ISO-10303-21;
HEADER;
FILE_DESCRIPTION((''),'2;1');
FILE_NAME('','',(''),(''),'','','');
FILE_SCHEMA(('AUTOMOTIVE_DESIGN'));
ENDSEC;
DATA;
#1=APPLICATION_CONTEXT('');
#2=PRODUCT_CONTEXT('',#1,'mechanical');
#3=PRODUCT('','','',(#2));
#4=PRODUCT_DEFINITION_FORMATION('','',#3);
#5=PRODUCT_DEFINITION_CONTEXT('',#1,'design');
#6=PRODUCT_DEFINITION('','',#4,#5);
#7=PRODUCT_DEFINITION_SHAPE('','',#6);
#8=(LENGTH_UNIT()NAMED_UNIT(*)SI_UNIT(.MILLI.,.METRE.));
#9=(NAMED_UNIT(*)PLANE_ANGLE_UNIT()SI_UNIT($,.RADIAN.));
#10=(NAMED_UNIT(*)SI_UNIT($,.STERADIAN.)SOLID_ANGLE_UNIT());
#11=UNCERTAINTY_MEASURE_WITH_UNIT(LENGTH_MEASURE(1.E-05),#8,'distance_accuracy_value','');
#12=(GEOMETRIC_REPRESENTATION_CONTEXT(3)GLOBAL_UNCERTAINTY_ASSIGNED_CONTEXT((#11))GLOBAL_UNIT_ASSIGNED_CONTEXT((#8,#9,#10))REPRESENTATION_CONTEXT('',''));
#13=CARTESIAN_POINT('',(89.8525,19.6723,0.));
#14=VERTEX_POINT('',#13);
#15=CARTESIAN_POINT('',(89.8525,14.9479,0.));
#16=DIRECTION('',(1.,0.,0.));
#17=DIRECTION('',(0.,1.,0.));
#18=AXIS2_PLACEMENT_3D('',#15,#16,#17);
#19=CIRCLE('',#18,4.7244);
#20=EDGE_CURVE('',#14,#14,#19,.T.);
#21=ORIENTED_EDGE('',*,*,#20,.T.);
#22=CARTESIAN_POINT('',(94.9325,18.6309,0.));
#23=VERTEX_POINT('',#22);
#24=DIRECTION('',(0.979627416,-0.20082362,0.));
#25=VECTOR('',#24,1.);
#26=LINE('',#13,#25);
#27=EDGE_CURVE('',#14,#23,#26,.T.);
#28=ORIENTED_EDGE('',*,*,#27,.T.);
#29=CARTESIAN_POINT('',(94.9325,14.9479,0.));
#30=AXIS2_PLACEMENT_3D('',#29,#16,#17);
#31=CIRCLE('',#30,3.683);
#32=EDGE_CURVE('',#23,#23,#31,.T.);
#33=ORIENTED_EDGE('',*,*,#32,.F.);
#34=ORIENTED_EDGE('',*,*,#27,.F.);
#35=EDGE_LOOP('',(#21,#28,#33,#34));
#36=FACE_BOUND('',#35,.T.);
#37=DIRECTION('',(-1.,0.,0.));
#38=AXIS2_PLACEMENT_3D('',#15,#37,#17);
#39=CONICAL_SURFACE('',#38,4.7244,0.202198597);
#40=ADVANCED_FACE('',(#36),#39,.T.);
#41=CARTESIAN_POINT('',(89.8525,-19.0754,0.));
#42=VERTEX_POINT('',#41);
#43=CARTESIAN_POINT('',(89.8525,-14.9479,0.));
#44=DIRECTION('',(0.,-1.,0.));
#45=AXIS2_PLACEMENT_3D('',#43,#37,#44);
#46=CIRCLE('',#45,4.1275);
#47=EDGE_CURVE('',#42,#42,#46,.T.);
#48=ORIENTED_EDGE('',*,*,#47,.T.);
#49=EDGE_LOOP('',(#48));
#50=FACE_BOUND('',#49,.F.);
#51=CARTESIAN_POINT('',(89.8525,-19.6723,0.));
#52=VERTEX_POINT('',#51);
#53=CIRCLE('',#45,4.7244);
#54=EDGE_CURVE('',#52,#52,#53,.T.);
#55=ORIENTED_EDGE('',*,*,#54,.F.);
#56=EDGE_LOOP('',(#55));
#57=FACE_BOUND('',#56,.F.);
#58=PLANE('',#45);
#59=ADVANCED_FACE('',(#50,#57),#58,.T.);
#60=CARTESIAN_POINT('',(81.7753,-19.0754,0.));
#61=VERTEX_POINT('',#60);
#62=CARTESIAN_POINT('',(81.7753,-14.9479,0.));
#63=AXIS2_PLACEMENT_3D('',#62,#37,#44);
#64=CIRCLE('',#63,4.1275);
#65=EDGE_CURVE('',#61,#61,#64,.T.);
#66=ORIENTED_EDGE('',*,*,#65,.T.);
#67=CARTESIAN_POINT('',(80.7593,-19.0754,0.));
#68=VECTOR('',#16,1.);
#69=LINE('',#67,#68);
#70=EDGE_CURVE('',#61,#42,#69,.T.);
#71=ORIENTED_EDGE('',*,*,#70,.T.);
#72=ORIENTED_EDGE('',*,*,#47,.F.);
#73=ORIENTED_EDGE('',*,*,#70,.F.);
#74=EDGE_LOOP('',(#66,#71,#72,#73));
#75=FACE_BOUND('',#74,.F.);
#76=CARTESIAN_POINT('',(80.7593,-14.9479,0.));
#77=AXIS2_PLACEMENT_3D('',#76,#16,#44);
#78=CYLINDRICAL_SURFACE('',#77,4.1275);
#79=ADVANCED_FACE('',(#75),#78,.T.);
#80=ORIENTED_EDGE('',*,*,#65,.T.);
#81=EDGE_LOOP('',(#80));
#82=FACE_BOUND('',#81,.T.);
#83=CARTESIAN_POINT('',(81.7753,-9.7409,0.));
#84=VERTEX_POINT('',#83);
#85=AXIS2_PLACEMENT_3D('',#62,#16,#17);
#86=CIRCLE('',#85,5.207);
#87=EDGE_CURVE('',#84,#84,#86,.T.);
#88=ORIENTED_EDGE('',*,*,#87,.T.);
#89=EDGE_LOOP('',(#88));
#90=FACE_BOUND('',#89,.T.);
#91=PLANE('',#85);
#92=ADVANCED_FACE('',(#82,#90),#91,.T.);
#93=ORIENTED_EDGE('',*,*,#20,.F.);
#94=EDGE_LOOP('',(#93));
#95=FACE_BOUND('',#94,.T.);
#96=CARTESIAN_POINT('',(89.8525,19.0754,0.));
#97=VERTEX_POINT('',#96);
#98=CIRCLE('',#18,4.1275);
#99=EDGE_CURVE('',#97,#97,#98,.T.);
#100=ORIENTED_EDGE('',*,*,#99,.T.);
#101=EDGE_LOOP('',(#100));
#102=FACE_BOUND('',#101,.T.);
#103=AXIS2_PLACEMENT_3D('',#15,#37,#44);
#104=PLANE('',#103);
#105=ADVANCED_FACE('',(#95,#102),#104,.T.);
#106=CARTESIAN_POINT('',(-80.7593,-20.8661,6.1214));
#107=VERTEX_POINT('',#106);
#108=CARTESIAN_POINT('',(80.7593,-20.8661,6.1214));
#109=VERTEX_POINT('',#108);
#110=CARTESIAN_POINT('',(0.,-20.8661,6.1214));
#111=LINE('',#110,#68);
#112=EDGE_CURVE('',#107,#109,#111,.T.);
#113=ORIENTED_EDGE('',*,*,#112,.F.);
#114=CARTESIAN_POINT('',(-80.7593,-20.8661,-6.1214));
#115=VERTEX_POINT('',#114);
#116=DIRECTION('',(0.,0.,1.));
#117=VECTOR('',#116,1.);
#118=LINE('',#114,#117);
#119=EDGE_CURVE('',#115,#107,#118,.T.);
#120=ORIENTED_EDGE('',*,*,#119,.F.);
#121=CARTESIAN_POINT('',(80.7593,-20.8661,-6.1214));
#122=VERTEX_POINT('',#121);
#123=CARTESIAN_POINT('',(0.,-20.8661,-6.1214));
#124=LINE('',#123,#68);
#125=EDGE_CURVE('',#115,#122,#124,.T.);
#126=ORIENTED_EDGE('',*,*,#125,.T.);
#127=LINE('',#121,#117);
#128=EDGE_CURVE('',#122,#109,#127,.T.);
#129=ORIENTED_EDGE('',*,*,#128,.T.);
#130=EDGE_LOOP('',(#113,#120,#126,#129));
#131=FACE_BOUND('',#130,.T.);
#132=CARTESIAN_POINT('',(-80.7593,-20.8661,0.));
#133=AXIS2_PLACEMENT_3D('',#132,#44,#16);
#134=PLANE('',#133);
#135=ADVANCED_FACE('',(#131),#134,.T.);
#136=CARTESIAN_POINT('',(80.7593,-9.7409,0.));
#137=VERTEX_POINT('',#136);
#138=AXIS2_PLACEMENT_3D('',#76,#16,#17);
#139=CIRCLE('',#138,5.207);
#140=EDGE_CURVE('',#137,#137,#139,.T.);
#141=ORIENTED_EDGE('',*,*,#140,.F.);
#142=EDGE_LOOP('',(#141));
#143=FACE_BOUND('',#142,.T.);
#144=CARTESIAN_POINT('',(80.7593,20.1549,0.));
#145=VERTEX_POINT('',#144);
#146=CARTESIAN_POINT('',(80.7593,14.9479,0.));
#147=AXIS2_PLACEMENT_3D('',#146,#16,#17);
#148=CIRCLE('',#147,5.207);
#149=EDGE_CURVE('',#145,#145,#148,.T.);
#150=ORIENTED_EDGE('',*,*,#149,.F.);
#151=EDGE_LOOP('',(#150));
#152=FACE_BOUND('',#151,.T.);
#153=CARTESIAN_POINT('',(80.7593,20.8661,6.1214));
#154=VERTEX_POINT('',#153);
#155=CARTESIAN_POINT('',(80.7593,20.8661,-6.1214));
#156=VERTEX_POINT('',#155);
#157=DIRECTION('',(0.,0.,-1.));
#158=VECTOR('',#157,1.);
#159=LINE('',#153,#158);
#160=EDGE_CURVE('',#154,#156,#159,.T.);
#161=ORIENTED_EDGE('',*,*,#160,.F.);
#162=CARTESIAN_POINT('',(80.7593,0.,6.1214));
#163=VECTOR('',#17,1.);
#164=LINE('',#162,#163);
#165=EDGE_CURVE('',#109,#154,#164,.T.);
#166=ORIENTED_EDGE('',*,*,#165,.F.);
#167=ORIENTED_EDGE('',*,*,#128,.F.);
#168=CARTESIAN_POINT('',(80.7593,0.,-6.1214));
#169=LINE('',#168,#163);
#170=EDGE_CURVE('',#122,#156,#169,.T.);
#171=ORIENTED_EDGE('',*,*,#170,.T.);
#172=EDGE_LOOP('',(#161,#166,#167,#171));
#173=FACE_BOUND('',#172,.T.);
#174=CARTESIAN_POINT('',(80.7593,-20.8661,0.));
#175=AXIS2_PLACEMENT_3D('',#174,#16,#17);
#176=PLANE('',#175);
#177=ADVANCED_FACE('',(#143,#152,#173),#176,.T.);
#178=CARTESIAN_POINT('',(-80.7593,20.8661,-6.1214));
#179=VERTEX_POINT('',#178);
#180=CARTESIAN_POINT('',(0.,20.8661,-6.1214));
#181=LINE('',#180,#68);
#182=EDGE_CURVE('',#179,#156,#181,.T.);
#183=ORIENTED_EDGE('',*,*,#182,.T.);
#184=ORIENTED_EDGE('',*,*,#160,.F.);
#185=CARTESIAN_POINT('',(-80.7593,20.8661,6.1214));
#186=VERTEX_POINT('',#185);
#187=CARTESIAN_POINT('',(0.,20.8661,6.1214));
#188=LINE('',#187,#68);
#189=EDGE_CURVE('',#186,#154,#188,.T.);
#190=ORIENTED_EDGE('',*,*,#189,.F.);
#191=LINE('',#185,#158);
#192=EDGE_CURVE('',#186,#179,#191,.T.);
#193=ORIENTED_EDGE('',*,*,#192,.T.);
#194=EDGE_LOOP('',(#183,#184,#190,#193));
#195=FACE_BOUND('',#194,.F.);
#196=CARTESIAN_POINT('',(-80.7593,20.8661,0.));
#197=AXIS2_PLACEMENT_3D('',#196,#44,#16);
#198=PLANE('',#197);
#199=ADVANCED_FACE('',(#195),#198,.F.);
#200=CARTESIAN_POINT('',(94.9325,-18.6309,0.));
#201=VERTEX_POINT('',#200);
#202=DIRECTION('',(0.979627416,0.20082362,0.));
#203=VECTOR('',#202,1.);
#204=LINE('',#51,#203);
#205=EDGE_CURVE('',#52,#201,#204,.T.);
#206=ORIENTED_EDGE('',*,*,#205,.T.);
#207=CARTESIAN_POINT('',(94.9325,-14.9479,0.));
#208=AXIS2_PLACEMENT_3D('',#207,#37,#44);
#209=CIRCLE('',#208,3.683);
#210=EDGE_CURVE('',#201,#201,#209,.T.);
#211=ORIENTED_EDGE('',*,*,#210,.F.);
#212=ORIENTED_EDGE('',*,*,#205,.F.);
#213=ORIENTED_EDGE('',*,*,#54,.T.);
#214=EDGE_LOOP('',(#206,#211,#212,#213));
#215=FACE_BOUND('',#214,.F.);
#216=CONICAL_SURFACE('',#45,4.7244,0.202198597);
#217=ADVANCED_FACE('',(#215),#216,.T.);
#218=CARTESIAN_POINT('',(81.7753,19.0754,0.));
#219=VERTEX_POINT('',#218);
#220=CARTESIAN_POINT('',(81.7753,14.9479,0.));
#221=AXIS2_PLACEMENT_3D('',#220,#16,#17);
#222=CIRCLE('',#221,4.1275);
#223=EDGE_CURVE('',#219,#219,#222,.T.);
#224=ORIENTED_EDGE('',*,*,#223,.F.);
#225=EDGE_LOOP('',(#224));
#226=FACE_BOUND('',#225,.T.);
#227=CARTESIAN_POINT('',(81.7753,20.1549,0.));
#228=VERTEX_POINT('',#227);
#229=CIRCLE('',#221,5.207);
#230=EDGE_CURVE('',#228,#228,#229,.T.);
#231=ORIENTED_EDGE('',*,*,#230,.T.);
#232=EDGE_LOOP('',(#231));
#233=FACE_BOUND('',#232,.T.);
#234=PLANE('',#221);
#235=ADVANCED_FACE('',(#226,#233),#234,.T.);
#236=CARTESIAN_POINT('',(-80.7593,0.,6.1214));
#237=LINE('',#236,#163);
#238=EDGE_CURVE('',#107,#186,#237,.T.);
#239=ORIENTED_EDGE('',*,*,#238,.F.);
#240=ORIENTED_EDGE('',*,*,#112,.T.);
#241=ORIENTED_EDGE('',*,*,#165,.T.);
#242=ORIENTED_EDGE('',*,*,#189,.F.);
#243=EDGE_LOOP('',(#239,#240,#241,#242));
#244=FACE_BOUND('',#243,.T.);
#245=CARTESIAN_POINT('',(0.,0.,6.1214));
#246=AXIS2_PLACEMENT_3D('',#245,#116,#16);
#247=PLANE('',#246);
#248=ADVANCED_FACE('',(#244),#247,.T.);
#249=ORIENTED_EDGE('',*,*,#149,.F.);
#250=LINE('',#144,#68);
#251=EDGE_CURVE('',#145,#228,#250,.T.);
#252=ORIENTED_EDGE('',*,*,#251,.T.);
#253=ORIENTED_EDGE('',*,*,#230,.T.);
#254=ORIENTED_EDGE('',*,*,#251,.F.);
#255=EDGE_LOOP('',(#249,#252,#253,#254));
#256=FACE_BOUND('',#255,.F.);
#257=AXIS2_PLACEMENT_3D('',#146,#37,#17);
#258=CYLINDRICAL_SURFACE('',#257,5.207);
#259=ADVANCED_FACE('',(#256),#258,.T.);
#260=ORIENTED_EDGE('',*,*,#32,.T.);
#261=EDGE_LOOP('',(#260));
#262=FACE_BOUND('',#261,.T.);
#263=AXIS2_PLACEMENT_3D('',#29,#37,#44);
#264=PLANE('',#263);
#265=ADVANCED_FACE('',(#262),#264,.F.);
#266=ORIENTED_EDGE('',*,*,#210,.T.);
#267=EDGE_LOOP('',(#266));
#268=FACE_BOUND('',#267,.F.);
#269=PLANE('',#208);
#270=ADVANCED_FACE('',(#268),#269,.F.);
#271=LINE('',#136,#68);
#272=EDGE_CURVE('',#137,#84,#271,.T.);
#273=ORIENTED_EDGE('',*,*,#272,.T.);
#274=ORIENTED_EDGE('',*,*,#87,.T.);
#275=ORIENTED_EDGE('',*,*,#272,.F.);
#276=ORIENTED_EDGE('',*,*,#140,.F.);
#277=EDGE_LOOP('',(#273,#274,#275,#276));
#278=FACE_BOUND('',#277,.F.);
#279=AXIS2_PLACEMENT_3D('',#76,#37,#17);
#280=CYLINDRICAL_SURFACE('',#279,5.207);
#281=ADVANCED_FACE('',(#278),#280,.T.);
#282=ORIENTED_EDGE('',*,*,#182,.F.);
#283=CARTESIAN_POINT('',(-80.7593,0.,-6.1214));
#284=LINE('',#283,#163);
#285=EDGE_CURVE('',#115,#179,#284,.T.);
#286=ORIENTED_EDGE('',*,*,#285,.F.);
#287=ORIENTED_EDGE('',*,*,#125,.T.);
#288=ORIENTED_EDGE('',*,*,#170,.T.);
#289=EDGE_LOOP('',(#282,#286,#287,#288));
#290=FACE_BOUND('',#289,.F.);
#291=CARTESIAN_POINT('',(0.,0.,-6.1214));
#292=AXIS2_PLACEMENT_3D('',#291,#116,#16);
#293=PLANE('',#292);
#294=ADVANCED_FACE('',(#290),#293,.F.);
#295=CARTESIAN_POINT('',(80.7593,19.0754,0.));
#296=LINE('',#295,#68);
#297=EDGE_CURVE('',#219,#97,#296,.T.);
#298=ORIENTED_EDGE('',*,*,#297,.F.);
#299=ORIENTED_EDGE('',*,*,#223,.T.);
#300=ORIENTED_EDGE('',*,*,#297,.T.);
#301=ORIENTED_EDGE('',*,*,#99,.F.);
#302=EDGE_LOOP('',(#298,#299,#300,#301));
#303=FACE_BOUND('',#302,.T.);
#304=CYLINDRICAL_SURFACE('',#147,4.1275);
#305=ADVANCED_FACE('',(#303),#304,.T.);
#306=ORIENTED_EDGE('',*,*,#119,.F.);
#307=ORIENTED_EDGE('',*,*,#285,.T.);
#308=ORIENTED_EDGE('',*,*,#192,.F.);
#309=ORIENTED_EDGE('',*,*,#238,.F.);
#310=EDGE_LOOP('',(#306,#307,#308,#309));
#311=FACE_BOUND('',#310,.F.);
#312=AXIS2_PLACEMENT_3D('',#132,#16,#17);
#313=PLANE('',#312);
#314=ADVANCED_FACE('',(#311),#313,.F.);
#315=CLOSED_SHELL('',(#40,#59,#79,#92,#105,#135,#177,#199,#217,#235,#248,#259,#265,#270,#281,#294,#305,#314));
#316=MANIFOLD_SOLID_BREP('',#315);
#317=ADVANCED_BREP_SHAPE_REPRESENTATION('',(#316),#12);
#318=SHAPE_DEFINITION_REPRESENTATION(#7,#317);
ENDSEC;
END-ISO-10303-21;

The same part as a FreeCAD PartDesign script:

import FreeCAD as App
import Part
import Sketcher

V = App.Vector
Q = App.Units.Quantity

doc = App.newDocument("Part")
body = doc.addObject("PartDesign::Body", "Body")

# Sketch on XY plane
sketch1 = body.newObject("Sketcher::SketchObject", "Sketch")
sketch1.AttachmentSupport = (doc.getObject("XY_Plane"), [""])
sketch1.MapMode = "FlatFace"
sketch1.addGeometry([
    Part.LineSegment(V(-81, 21, 0), V(-81, -21, 0)),
    Part.LineSegment(V(-81, -21, 0), V(81, -21, 0)),
    Part.LineSegment(V(81, -21, 0), V(81, 21, 0)),
    Part.LineSegment(V(81, 21, 0), V(-81, 21, 0)),
], False)
sketch1.addConstraint([
    Sketcher.Constraint("Coincident", 0, 2, 1, 1),
    Sketcher.Constraint("Coincident", 1, 2, 2, 1),
    Sketcher.Constraint("Coincident", 2, 2, 3, 1),
    Sketcher.Constraint("Coincident", 3, 2, 0, 1),
    Sketcher.Constraint("Vertical", 0),
    Sketcher.Constraint("Horizontal", 1),
    Sketcher.Constraint("Vertical", 2),
    Sketcher.Constraint("Horizontal", 3),
    Sketcher.Constraint("Symmetric", 0, 2, 2, 2, -1, 1),
    Sketcher.Constraint("DistanceX", 1, 1, 1, 2, Q("6.359 in")),
    Sketcher.Constraint("DistanceY", 0, 2, 0, 1, Q("1.643 in")),
])
pad1 = body.newObject("PartDesign::Pad", "Pad")
pad1.Profile = sketch1
pad1.Length = Q("0.482 in")
pad1.Midplane = True

# Sketch on XY plane
sketch2 = body.newObject("Sketcher::SketchObject", "Sketch001")
sketch2.AttachmentSupport = (doc.getObject("XY_Plane"), [""])
sketch2.MapMode = "FlatFace"
sketch2.addGeometry([
    Part.LineSegment(V(80.8, -14.9, 0), V(80.8, -19.1, 0)),  # 0
    Part.LineSegment(V(80.8, -19.1, 0), V(89.9, -19.1, 0)),  # 1
    Part.LineSegment(V(89.9, -19.1, 0), V(89.9, -19.7, 0)),  # 2
    Part.LineSegment(V(89.9, -19.7, 0), V(94.9, -18.6, 0)),  # 3
    Part.LineSegment(V(94.9, -18.6, 0), V(94.9, -14.9, 0)),  # 4
    Part.LineSegment(V(94.9, -14.9, 0), V(80.8, -14.9, 0)),  # 5
], False)
sketch2.addGeometry(Part.LineSegment(V(94.9, -14.9, 0), V(80.8, -14.9, 0)), True)  # axis
sketch2.addConstraint([
    Sketcher.Constraint("Coincident", 0, 2, 1, 1),
    Sketcher.Constraint("Coincident", 1, 2, 2, 1),
    Sketcher.Constraint("Coincident", 2, 2, 3, 1),
    Sketcher.Constraint("Coincident", 3, 2, 4, 1),
    Sketcher.Constraint("Coincident", 4, 2, 5, 1),
    Sketcher.Constraint("Coincident", 5, 2, 0, 1),
    Sketcher.Constraint("Vertical", 0),
    Sketcher.Constraint("Horizontal", 1),
    Sketcher.Constraint("Vertical", 2),
    Sketcher.Constraint("Vertical", 4),
    Sketcher.Constraint("Horizontal", 5),
    Sketcher.Constraint("Horizontal", 6),
    Sketcher.Constraint("Coincident", 6, 1, 4, 2),
    Sketcher.Constraint("Vertical", 0, 2, 6, 2),
    Sketcher.Constraint("DistanceX", 1, 2, 3, 2, Q("0.2 in")),
    Sketcher.Constraint("DistanceX", 1, 1, 1, 2, Q("0.358 in")),
    Sketcher.Constraint("DistanceY", 4, 1, 4, 2, Q("0.145 in")),
    Sketcher.Constraint("DistanceY", 0, 2, 0, 1, Q("0.1625 in")),
    Sketcher.Constraint("DistanceY", 2, 2, 2, 1, Q("0.0235 in")),
    Sketcher.Constraint("DistanceY", 0, 2, -1, 1, Q("0.751 in")),
    Sketcher.Constraint("DistanceX", -1, 1, 0, 2, Q("3.1795 in")),
])
revolution = body.newObject("PartDesign::Revolution", "Revolution")
revolution.Profile = sketch2
revolution.ReferenceAxis = (sketch2, ["Axis0"])
revolution.Angle = 360
body2 = doc.addObject("PartDesign::Body", "Body001")
doc.recompute()

body2.BaseFeature = body
doc.recompute()

mirroring = doc.addObject("Part::Mirroring", "Mirroring")
mirroring.Source = body
mirroring.Base = V(0, 0, 0)
mirroring.Normal = V(0, -1, 0)
body3 = doc.addObject("PartDesign::Body", "Body002")
body3.BaseFeature = mirroring
boolean = body2.newObject("PartDesign::Boolean", "Boolean")
boolean.Type = "Fuse"
boolean.addObjects([body3])
doc.recompute()

# Sketch on YZ plane
sketch3 = body2.newObject("Sketcher::SketchObject", "Sketch002")
sketch3.AttachmentSupport = (doc.getObject("YZ_Plane001"), [""])
sketch3.MapMode = "FlatFace"
sketch3.AttachmentOffset = App.Placement(V(0, 0, 3.1795 * 25.4), App.Rotation())
sketch3.addGeometry([
    Part.Circle(V(-14.9, 0, 0), V(0, 0, 1), 5.2),
    Part.Circle(V(-14.9, 0, 0), V(0, 0, 1), 4.1),
    Part.Circle(V(14.9, 0, 0), V(0, 0, 1), 5.2),
    Part.Circle(V(14.9, 0, 0), V(0, 0, 1), 4.1),
], False)
sketch3.addConstraint([
    Sketcher.Constraint("Coincident", 1, 3, 0, 3),
    Sketcher.Constraint("Coincident", 3, 3, 2, 3),
    Sketcher.Constraint("Equal", 0, 2),
    Sketcher.Constraint("Equal", 1, 3),
    Sketcher.Constraint("Symmetric", 0, 3, 2, 3, -1, 1),
    Sketcher.Constraint("PointOnObject", 0, 3, -1),
    Sketcher.Constraint("Diameter", 0, Q("0.41 in")),
    Sketcher.Constraint("Diameter", 1, Q("0.325 in")),
    Sketcher.Constraint("DistanceX", 0, 3, 2, 3, Q("1.177 in")),
])
pad2 = body2.newObject("PartDesign::Pad", "Pad001")
pad2.Profile = sketch3
pad2.Length = Q("0.04 in")
mirroring.Visibility = False

doc.recompute()
